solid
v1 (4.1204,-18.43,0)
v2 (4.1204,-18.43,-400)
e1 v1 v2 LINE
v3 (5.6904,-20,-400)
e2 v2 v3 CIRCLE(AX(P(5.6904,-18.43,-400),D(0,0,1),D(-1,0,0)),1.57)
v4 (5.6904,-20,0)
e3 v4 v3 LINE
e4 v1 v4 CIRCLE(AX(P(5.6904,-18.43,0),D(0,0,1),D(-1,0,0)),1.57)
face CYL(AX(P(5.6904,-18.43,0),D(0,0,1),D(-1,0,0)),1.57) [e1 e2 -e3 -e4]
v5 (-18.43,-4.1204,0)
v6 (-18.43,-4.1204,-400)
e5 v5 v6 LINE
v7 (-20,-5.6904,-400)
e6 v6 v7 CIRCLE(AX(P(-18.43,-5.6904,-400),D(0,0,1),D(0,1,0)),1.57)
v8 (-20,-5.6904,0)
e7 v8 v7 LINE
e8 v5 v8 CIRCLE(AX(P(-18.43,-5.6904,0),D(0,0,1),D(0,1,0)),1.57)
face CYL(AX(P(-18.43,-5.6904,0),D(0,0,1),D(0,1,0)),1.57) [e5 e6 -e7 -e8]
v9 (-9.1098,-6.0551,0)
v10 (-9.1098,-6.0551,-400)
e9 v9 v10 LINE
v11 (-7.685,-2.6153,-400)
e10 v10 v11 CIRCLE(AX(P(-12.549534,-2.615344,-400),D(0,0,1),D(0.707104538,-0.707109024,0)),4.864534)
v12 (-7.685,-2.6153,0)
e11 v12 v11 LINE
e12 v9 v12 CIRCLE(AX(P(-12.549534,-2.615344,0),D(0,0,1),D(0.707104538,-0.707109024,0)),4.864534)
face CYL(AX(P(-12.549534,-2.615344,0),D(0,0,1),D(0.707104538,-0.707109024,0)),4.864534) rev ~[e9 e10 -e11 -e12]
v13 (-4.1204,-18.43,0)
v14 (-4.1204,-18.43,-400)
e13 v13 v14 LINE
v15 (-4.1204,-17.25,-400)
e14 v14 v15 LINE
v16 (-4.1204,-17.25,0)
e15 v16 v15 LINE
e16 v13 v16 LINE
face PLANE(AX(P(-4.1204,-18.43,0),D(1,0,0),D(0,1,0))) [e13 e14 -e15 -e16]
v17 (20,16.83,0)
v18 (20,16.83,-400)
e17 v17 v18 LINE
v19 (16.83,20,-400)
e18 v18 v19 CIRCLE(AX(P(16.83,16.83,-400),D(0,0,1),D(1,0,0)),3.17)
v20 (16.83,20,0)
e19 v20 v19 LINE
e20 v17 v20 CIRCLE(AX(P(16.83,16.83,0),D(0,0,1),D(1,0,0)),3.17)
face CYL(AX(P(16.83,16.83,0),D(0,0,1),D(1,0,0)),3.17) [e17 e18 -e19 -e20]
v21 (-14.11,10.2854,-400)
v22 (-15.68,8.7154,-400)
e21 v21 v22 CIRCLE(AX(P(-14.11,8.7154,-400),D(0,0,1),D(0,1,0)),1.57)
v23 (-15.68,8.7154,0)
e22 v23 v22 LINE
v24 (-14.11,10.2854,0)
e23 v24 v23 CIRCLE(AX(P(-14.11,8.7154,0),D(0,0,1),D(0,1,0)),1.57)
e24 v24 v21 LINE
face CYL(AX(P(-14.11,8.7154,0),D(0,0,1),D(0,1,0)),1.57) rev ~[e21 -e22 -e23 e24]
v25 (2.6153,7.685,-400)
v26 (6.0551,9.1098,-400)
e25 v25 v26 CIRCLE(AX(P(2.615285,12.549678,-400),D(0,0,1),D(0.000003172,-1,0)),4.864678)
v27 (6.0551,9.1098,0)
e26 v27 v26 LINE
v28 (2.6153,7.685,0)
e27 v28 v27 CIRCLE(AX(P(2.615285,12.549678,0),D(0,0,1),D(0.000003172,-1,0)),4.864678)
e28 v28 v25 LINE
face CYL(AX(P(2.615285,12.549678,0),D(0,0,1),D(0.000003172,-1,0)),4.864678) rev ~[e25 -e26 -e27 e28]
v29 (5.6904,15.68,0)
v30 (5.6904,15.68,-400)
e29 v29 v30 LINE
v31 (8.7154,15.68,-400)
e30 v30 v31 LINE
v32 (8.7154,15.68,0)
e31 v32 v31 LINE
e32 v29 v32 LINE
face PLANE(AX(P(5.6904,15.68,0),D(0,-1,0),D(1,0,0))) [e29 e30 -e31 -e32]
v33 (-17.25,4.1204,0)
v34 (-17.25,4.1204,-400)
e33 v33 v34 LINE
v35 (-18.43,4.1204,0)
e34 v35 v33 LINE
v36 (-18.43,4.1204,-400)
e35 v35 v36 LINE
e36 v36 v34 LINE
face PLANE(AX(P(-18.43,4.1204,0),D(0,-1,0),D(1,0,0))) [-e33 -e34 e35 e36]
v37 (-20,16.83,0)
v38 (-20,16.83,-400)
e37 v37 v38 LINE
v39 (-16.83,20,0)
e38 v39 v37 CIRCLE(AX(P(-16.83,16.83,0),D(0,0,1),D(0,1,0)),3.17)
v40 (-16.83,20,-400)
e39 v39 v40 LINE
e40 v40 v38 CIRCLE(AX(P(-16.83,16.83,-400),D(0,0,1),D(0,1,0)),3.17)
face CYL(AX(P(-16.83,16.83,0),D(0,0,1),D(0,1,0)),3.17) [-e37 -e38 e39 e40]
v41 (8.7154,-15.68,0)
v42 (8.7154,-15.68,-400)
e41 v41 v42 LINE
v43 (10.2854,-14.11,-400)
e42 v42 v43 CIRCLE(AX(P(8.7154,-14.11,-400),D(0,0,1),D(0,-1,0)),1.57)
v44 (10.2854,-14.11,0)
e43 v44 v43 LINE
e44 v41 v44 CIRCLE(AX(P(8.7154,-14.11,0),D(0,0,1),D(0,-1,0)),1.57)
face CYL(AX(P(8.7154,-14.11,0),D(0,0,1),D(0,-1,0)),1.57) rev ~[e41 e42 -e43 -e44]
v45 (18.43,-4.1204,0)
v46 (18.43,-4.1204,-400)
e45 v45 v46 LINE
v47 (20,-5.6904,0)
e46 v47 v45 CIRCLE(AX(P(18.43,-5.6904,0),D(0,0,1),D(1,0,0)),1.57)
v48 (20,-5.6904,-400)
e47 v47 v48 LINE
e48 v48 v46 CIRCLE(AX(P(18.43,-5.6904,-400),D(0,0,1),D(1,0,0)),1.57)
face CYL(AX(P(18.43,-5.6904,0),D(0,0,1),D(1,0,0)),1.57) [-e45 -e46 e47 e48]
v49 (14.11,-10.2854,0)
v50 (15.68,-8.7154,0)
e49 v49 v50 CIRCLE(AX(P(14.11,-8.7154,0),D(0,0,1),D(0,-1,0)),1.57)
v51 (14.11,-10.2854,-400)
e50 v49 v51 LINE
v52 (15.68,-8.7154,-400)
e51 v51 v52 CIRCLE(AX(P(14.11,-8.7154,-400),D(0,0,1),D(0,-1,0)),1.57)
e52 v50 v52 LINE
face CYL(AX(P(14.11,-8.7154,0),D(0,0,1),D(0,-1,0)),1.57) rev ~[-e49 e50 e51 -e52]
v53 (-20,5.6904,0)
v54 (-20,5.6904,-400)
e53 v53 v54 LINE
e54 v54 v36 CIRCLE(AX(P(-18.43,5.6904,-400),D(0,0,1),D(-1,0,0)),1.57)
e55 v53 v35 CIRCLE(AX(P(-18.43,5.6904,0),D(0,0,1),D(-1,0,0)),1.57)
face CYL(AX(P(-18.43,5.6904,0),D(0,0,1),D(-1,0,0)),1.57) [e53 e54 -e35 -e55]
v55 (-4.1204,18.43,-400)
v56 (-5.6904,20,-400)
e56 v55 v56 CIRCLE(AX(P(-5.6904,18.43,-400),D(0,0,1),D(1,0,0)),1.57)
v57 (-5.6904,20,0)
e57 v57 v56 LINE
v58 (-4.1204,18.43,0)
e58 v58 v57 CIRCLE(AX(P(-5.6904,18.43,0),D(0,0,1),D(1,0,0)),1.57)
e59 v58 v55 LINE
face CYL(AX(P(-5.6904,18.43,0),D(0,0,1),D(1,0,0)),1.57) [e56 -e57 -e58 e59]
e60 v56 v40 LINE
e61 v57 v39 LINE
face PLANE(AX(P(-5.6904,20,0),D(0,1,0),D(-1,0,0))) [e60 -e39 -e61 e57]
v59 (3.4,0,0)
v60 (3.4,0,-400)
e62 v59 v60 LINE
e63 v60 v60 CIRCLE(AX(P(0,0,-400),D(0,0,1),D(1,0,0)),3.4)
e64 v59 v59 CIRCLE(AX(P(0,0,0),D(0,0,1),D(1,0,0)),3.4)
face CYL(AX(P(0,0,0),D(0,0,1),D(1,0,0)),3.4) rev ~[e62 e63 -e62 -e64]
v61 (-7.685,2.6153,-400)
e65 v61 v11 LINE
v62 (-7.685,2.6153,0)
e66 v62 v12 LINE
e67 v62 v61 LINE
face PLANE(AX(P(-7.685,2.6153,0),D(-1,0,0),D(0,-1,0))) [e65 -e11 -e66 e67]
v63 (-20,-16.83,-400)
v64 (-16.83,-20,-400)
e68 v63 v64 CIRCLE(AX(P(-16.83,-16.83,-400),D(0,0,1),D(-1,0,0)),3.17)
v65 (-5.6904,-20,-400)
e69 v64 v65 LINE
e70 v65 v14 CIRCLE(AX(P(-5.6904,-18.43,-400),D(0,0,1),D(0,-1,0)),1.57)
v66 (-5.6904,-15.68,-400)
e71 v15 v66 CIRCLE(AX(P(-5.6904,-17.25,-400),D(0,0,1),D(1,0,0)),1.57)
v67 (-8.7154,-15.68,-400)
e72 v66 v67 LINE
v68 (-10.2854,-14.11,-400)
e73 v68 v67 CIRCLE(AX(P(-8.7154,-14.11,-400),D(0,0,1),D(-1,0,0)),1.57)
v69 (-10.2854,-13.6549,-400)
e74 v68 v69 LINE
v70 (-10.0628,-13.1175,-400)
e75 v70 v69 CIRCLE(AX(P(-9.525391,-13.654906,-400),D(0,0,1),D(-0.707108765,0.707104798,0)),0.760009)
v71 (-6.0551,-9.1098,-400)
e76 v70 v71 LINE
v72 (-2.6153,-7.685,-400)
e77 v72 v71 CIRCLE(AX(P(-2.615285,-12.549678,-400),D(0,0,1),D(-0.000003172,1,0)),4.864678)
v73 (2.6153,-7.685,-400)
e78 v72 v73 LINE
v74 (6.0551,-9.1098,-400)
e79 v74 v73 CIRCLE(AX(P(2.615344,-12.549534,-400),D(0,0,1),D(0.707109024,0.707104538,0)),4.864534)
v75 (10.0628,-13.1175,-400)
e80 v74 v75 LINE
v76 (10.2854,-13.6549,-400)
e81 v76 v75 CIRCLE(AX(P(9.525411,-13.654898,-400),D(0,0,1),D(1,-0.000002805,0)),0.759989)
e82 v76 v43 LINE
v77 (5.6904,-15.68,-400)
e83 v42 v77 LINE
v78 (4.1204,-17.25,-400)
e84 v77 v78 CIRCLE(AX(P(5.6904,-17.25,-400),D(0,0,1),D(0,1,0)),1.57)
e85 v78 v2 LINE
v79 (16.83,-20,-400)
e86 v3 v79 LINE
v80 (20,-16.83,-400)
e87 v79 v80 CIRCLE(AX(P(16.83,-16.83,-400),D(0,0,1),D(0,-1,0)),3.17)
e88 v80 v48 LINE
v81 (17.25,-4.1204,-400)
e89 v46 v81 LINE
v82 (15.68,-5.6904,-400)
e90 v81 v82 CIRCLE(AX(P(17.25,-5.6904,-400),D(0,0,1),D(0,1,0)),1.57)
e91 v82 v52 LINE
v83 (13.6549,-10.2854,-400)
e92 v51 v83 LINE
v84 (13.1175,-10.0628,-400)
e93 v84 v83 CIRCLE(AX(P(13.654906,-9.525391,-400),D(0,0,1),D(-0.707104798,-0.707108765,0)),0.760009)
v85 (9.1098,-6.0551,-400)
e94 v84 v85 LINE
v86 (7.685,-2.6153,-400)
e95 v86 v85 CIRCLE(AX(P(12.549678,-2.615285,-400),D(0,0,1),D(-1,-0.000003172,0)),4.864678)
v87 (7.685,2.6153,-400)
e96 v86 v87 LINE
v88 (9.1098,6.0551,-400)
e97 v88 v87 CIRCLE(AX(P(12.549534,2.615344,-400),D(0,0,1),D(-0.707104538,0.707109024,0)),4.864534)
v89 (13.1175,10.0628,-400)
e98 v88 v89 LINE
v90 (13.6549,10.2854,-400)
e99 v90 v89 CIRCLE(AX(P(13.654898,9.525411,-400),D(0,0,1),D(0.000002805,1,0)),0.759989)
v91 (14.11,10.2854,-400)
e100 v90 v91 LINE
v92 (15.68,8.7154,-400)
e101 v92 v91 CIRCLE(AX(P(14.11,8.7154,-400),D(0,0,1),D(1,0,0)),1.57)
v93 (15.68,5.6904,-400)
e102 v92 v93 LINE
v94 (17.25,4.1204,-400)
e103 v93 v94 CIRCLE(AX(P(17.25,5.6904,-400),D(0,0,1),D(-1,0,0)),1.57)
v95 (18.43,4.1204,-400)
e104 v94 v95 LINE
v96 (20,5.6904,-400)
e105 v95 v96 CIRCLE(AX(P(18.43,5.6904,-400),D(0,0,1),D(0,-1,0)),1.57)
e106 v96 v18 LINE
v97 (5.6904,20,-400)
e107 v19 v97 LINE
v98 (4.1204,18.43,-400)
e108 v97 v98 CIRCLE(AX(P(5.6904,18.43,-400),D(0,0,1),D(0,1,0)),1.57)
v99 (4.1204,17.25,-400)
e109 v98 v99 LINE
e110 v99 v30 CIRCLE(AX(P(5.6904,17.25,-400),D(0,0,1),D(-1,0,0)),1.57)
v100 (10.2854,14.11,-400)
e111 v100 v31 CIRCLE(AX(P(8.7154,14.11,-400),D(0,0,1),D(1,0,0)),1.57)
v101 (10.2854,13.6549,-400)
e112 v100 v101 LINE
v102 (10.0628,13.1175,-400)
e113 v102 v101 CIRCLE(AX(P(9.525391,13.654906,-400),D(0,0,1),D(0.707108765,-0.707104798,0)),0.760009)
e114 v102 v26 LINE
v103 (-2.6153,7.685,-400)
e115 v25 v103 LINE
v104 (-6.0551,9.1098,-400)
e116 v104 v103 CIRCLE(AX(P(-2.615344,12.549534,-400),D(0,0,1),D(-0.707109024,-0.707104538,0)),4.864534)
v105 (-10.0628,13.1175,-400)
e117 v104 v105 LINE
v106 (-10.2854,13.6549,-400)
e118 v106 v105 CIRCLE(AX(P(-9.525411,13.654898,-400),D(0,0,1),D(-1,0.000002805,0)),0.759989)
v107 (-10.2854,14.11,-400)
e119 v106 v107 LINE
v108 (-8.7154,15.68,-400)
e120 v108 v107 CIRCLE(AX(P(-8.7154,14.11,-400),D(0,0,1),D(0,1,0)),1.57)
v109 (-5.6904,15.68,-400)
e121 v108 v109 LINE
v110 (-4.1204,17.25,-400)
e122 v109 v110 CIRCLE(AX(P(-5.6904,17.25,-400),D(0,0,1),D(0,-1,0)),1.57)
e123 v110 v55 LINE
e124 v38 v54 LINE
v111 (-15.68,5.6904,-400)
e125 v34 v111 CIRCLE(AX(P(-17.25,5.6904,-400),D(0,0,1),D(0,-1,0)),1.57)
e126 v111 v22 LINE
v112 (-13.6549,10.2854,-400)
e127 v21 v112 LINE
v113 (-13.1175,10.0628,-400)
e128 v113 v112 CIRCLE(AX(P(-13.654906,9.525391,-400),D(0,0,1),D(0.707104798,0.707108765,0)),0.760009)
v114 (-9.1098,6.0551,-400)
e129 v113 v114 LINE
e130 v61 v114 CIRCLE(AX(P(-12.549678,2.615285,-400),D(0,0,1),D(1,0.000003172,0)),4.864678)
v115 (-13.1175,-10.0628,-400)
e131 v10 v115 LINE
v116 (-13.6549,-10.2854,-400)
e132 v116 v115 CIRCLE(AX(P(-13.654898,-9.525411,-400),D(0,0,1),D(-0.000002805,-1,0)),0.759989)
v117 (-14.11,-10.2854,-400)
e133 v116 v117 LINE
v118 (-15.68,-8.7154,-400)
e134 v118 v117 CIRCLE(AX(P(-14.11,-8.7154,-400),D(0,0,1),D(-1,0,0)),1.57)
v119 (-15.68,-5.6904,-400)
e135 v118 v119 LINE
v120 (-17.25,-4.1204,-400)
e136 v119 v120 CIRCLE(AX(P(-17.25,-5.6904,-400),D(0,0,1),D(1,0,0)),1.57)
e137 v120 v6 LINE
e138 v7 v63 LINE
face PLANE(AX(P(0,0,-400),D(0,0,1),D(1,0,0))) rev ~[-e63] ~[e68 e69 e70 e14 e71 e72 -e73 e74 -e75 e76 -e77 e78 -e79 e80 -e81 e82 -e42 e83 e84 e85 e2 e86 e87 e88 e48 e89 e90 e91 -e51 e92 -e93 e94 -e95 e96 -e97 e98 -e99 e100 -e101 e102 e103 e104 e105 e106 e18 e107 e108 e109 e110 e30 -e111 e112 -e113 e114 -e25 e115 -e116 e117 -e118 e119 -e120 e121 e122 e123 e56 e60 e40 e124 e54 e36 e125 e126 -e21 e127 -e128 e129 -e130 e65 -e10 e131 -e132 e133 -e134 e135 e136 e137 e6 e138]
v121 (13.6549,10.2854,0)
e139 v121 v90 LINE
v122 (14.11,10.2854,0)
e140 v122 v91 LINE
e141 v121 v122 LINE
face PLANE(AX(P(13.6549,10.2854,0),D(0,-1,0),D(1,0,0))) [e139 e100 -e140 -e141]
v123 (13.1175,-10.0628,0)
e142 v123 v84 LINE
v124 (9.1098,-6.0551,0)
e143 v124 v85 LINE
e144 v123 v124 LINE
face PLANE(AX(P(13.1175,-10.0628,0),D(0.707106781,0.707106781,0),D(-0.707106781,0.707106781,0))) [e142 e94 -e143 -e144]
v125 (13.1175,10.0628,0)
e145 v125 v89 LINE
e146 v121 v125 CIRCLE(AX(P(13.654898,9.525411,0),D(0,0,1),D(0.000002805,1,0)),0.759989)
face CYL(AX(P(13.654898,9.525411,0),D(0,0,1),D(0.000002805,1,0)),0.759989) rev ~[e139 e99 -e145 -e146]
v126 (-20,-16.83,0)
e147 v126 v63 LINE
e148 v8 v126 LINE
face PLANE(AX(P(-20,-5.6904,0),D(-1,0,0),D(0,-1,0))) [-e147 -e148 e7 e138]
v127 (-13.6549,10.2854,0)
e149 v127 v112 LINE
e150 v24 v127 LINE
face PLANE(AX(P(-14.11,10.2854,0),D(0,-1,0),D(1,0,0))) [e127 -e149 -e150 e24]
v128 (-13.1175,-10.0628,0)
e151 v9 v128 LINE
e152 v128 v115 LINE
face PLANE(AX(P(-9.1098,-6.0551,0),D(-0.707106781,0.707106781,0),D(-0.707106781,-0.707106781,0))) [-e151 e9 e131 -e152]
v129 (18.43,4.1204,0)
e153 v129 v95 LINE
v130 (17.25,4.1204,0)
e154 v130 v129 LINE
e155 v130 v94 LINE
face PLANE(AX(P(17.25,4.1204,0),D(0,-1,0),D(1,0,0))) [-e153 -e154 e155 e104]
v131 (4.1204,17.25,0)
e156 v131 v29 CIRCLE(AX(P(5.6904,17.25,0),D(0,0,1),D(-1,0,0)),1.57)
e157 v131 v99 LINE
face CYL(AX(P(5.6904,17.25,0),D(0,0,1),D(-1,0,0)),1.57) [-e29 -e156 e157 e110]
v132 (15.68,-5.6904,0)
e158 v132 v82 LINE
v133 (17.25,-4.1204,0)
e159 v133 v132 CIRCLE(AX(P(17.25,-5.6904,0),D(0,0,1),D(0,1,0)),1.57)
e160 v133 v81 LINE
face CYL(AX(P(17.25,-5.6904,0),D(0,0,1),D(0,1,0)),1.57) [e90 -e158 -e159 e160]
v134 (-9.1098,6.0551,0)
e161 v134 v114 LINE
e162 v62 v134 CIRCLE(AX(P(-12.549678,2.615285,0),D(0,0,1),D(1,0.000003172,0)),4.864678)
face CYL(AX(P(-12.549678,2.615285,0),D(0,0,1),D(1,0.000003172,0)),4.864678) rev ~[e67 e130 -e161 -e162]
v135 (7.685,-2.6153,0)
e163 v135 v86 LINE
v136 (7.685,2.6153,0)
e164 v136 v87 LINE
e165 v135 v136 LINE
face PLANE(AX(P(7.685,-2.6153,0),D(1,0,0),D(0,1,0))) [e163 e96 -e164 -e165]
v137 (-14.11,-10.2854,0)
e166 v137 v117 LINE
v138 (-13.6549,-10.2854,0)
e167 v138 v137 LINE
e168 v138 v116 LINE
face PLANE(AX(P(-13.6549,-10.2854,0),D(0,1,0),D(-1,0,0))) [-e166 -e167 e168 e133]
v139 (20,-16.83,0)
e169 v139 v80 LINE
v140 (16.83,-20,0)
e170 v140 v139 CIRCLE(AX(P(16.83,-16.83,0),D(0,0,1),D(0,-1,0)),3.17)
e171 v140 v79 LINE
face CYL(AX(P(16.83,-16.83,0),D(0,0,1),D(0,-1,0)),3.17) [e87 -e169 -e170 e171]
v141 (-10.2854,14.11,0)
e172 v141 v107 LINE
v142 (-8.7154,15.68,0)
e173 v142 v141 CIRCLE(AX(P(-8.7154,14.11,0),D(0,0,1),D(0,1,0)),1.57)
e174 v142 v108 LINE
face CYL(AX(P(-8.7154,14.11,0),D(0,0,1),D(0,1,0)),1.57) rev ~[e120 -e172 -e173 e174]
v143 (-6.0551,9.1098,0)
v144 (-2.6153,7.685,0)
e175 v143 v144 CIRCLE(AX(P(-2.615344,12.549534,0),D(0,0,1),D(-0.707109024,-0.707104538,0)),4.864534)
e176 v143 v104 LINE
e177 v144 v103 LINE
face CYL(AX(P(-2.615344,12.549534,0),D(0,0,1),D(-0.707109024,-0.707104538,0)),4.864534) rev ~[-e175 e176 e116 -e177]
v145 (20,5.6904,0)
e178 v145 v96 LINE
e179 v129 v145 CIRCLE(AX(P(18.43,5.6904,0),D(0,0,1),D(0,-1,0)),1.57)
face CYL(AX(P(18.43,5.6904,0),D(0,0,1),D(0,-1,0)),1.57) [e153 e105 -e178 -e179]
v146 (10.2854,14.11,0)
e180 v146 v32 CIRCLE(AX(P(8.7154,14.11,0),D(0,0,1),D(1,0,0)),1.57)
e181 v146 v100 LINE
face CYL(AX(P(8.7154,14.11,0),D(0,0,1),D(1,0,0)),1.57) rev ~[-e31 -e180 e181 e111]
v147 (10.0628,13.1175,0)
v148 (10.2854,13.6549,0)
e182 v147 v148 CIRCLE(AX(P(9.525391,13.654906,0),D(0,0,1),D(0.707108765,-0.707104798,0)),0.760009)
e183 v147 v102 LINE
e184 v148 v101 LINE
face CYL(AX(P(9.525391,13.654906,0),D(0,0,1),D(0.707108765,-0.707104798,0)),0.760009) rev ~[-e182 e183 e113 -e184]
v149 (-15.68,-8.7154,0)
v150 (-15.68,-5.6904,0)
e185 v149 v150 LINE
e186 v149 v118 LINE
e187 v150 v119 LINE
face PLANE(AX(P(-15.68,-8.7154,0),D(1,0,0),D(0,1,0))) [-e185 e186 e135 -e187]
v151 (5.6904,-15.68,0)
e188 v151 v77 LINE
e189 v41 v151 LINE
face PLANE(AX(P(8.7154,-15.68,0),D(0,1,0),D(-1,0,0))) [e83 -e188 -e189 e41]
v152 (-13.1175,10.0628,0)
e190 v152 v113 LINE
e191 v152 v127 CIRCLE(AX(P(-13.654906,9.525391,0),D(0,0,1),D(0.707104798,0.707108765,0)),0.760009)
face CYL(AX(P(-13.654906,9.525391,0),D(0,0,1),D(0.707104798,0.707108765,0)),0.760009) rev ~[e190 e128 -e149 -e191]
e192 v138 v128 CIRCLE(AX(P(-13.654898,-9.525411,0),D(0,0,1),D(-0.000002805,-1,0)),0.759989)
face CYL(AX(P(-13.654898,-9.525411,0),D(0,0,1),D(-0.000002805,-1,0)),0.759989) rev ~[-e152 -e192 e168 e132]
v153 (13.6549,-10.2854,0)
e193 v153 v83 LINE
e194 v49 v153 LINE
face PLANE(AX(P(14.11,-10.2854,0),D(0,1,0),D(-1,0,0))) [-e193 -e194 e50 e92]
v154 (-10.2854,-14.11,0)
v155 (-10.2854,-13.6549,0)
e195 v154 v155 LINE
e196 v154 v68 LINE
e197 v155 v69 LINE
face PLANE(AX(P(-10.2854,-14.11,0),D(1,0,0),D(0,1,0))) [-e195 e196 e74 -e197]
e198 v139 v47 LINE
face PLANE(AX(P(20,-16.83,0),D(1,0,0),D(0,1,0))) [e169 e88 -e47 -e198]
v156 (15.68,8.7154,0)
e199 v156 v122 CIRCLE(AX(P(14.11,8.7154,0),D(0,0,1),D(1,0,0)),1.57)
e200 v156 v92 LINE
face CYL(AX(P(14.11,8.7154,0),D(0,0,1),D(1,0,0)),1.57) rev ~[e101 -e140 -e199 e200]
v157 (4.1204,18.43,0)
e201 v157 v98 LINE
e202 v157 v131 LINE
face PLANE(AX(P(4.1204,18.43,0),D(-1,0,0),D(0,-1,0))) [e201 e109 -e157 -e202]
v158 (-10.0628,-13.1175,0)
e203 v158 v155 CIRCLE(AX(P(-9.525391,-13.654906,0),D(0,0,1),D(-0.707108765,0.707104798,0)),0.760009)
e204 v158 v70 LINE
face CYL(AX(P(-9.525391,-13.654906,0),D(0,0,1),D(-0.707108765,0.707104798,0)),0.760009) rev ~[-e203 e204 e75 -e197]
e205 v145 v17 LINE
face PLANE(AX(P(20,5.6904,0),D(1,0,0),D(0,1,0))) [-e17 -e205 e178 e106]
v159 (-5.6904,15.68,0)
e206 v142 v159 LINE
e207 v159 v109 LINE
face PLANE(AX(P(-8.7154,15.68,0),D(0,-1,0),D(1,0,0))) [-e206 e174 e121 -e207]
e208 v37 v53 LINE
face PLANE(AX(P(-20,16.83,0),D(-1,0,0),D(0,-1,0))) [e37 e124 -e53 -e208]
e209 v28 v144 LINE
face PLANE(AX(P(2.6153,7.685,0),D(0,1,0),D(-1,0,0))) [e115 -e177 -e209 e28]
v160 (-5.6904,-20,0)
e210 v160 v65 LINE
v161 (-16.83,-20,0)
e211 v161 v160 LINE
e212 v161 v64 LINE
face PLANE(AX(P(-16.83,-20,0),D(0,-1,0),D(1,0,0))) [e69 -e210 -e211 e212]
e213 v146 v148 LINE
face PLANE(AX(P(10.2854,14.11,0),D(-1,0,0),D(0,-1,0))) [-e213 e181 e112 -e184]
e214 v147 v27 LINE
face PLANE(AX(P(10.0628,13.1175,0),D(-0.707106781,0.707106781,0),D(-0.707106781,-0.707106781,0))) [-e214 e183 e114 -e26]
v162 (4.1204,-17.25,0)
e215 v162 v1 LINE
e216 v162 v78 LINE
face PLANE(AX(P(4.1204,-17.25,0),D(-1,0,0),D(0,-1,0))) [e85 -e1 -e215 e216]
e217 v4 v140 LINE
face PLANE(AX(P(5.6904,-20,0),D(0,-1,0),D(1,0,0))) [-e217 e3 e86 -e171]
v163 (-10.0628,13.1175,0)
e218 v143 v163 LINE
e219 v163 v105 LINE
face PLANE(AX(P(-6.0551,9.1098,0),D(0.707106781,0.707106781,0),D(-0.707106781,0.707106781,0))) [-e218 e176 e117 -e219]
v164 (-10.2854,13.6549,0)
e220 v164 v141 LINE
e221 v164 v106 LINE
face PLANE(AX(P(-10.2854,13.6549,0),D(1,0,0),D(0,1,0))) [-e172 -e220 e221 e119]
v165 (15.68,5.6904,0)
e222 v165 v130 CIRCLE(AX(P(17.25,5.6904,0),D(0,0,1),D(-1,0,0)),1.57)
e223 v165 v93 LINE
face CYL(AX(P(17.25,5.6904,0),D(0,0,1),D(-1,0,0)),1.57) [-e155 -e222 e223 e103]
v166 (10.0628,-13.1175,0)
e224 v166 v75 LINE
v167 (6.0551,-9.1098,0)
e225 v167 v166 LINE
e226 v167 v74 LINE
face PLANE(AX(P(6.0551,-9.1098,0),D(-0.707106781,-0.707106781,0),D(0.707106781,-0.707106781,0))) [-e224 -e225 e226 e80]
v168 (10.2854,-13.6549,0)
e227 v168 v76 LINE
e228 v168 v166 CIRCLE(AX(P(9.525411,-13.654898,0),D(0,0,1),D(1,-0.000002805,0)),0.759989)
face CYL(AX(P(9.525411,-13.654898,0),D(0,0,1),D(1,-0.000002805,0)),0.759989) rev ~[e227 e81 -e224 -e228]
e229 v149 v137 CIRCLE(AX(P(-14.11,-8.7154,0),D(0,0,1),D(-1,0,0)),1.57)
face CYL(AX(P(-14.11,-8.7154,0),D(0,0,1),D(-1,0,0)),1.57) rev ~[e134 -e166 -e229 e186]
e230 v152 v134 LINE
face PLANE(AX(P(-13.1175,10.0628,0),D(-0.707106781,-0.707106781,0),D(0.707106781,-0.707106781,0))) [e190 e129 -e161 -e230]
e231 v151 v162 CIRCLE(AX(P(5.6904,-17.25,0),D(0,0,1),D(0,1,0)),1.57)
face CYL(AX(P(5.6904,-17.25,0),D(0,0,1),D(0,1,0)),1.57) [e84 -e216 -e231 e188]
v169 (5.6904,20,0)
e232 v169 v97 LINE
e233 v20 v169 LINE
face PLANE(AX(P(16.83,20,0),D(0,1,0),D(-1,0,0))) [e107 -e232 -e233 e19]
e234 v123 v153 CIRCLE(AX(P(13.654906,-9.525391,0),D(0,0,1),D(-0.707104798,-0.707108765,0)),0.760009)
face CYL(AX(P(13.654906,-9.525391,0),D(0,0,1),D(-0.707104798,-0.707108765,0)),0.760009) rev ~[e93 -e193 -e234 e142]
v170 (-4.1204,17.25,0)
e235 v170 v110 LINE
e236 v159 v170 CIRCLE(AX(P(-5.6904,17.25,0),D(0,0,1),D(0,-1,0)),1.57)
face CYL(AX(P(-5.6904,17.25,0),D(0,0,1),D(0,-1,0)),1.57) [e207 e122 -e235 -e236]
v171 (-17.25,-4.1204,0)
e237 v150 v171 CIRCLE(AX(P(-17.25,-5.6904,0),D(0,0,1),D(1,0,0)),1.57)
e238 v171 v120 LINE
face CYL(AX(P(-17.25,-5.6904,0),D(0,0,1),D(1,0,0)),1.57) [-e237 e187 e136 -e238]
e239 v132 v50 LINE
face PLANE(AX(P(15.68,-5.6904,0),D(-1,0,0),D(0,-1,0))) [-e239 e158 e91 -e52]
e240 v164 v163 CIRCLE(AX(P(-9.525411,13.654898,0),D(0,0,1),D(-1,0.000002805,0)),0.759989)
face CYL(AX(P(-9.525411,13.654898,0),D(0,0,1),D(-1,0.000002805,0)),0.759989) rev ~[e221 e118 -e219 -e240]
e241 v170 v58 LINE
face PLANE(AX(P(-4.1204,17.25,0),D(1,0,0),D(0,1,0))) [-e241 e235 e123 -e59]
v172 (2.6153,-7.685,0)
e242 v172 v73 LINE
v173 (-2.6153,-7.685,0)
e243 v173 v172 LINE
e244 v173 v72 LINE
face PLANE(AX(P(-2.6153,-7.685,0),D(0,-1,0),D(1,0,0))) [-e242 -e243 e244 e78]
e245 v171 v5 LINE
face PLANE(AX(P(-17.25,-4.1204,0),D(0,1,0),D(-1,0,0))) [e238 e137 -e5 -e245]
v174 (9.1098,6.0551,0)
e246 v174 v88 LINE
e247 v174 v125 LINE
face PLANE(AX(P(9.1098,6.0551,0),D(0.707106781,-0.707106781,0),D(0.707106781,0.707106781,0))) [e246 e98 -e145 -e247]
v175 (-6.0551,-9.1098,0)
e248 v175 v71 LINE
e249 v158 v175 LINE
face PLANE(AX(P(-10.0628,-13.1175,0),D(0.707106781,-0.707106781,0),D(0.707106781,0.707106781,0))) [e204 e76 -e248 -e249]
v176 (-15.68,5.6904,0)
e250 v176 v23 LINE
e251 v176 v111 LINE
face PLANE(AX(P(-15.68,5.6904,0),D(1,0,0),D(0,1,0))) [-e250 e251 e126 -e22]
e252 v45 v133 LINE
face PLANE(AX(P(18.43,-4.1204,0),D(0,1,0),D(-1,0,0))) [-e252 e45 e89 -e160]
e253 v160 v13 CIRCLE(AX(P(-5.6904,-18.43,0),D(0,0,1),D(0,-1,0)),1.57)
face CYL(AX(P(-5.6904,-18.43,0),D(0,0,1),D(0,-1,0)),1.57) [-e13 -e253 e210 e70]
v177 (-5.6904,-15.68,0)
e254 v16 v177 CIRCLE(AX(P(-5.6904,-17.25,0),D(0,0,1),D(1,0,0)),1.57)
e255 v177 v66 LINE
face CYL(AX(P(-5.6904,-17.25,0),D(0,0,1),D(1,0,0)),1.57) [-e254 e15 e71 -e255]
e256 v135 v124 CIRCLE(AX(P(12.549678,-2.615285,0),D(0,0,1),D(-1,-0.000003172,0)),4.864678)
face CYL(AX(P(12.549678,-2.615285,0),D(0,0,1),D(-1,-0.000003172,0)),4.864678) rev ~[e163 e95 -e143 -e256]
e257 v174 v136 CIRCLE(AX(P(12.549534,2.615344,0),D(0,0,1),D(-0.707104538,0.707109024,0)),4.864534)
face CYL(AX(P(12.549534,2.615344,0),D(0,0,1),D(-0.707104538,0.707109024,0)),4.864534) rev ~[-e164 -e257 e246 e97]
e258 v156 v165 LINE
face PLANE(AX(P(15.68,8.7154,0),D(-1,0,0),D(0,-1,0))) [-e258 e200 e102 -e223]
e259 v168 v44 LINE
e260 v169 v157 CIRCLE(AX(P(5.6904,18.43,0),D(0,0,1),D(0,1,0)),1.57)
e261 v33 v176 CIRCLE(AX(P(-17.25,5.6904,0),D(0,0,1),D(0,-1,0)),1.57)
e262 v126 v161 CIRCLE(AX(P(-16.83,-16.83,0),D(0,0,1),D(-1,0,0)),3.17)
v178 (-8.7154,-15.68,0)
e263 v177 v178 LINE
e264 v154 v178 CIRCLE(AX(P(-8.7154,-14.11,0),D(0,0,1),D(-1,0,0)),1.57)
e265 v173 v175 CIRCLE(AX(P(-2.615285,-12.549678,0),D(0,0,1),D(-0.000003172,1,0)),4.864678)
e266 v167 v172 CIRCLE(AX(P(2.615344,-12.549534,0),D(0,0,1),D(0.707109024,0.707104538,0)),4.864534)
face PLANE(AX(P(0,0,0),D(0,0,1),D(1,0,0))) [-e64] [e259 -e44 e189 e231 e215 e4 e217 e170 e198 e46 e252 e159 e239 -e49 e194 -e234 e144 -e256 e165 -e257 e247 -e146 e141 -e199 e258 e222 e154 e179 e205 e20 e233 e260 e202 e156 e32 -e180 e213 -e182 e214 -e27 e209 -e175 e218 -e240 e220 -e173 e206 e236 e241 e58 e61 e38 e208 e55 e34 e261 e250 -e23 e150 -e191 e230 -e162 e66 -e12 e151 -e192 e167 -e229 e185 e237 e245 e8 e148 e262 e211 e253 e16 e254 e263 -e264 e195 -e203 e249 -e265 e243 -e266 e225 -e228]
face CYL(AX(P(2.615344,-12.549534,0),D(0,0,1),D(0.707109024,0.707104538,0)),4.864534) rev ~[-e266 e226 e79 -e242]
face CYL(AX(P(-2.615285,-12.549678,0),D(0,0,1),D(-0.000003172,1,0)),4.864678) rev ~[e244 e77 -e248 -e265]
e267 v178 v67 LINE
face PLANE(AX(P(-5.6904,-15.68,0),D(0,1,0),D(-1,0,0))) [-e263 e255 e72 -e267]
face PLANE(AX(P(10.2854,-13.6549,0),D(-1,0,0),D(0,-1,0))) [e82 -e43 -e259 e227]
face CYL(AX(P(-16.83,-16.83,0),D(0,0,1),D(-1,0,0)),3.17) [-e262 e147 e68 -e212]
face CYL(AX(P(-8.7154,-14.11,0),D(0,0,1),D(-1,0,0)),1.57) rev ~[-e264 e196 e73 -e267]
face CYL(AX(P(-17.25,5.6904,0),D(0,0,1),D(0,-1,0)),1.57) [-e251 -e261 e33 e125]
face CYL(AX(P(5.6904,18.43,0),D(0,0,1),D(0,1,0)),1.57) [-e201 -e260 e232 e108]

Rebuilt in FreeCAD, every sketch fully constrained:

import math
import FreeCAD as App
import Part
import Sketcher
from FreeCAD import Vector
Q = App.Units.Quantity

doc = App.newDocument("Part")
body = doc.addObject("PartDesign::Body", "Body")

# Sketch on XY plane
sketch1 = body.newObject("Sketcher::SketchObject", "Sketch")
sketch1.AttachmentSupport = (doc.getObject("XY_Plane"), [""])
sketch1.MapMode = "FlatFace"
sketch1.addGeometry(Part.ArcOfCircle(Part.Circle(Vector(-16.83, 16.83, 0), Vector(0, 0, 1), 3.17), math.radians(90), math.radians(180)), False)
sketch1.addGeometry(Part.LineSegment(Vector(-20, 16.83, 0), Vector(-20, 5.69, 0)), False)
sketch1.addGeometry(Part.ArcOfCircle(Part.Circle(Vector(-18.43, 5.69, 0), Vector(0, 0, 1), 1.57), math.radians(180), math.radians(270)), False)
sketch1.addGeometry(Part.LineSegment(Vector(-18.43, 4.12, 0), Vector(-17.25, 4.12, 0)), False)
sketch1.addGeometry(Part.ArcOfCircle(Part.Circle(Vector(-17.25, 5.69, 0), Vector(0, 0, 1), 1.57), math.radians(-90), math.radians(0)), False)
sketch1.addGeometry(Part.LineSegment(Vector(-15.68, 5.69, 0), Vector(-15.68, 8.72, 0)), False)
sketch1.addGeometry(Part.ArcOfCircle(Part.Circle(Vector(-14.11, 8.72, 0), Vector(0, 0, 1), 1.57), math.radians(90), math.radians(180)), False)
sketch1.addGeometry(Part.LineSegment(Vector(-14.11, 10.29, 0), Vector(-13.65, 10.29, 0)), False)
sketch1.addGeometry(Part.ArcOfCircle(Part.Circle(Vector(-13.65, 9.53, 0), Vector(0, 0, 1), 0.76), math.radians(45), math.radians(90)), False)
sketch1.addGeometry(Part.LineSegment(Vector(-13.12, 10.06, 0), Vector(-9.11, 6.06, 0)), False)
sketch1.addGeometry(Part.ArcOfCircle(Part.Circle(Vector(-12.55, 2.62, 0), Vector(0, 0, 1), 4.86), math.radians(0), math.radians(45)), False)
sketch1.addGeometry(Part.LineSegment(Vector(-7.68, 2.62, 0), Vector(-7.68, -2.62, 0)), False)
sketch1.addGeometry(Part.ArcOfCircle(Part.Circle(Vector(-12.55, -2.62, 0), Vector(0, 0, 1), 4.86), math.radians(-45), math.radians(0)), False)
sketch1.addGeometry(Part.LineSegment(Vector(-9.11, -6.06, 0), Vector(-13.12, -10.06, 0)), False)
sketch1.addGeometry(Part.ArcOfCircle(Part.Circle(Vector(-13.65, -9.53, 0), Vector(0, 0, 1), 0.76), math.radians(-90), math.radians(-45)), False)
sketch1.addGeometry(Part.LineSegment(Vector(-13.65, -10.29, 0), Vector(-14.11, -10.29, 0)), False)
sketch1.addGeometry(Part.ArcOfCircle(Part.Circle(Vector(-14.11, -8.72, 0), Vector(0, 0, 1), 1.57), math.radians(180), math.radians(270)), False)
sketch1.addGeometry(Part.LineSegment(Vector(-15.68, -8.72, 0), Vector(-15.68, -5.69, 0)), False)
sketch1.addGeometry(Part.ArcOfCircle(Part.Circle(Vector(-17.25, -5.69, 0), Vector(0, 0, 1), 1.57), math.radians(0), math.radians(90)), False)
sketch1.addGeometry(Part.LineSegment(Vector(-17.25, -4.12, 0), Vector(-18.43, -4.12, 0)), False)
sketch1.addGeometry(Part.ArcOfCircle(Part.Circle(Vector(-18.43, -5.69, 0), Vector(0, 0, 1), 1.57), math.radians(90), math.radians(180)), False)
sketch1.addGeometry(Part.LineSegment(Vector(-20, -5.69, 0), Vector(-20, -16.83, 0)), False)
sketch1.addGeometry(Part.ArcOfCircle(Part.Circle(Vector(-16.83, -16.83, 0), Vector(0, 0, 1), 3.17), math.radians(180), math.radians(270)), False)
sketch1.addGeometry(Part.LineSegment(Vector(-16.83, -20, 0), Vector(-5.69, -20, 0)), False)
sketch1.addGeometry(Part.ArcOfCircle(Part.Circle(Vector(-5.69, -18.43, 0), Vector(0, 0, 1), 1.57), math.radians(-90), math.radians(0)), False)
sketch1.addGeometry(Part.LineSegment(Vector(-4.12, -18.43, 0), Vector(-4.12, -17.25, 0)), False)
sketch1.addGeometry(Part.ArcOfCircle(Part.Circle(Vector(-5.69, -17.25, 0), Vector(0, 0, 1), 1.57), math.radians(0), math.radians(90)), False)
sketch1.addGeometry(Part.LineSegment(Vector(-5.69, -15.68, 0), Vector(-8.72, -15.68, 0)), False)
sketch1.addGeometry(Part.ArcOfCircle(Part.Circle(Vector(-8.72, -14.11, 0), Vector(0, 0, 1), 1.57), math.radians(180), math.radians(270)), False)
sketch1.addGeometry(Part.LineSegment(Vector(-10.29, -14.11, 0), Vector(-10.29, -13.65, 0)), False)
sketch1.addGeometry(Part.ArcOfCircle(Part.Circle(Vector(-9.53, -13.65, 0), Vector(0, 0, 1), 0.76), math.radians(135), math.radians(180)), False)
sketch1.addGeometry(Part.LineSegment(Vector(-10.06, -13.12, 0), Vector(-6.06, -9.11, 0)), False)
sketch1.addGeometry(Part.ArcOfCircle(Part.Circle(Vector(-2.62, -12.55, 0), Vector(0, 0, 1), 4.86), math.radians(90), math.radians(135)), False)
sketch1.addGeometry(Part.LineSegment(Vector(-2.62, -7.68, 0), Vector(2.62, -7.68, 0)), False)
sketch1.addGeometry(Part.ArcOfCircle(Part.Circle(Vector(2.62, -12.55, 0), Vector(0, 0, 1), 4.86), math.radians(45), math.radians(90)), False)
sketch1.addGeometry(Part.LineSegment(Vector(6.06, -9.11, 0), Vector(10.06, -13.12, 0)), False)
sketch1.addGeometry(Part.ArcOfCircle(Part.Circle(Vector(9.53, -13.65, 0), Vector(0, 0, 1), 0.76), math.radians(0), math.radians(45)), False)
sketch1.addGeometry(Part.LineSegment(Vector(10.29, -13.65, 0), Vector(10.29, -14.11, 0)), False)
sketch1.addGeometry(Part.ArcOfCircle(Part.Circle(Vector(8.72, -14.11, 0), Vector(0, 0, 1), 1.57), math.radians(-90), math.radians(0)), False)
sketch1.addGeometry(Part.LineSegment(Vector(8.72, -15.68, 0), Vector(5.69, -15.68, 0)), False)
sketch1.addGeometry(Part.ArcOfCircle(Part.Circle(Vector(5.69, -17.25, 0), Vector(0, 0, 1), 1.57), math.radians(90), math.radians(180)), False)
sketch1.addGeometry(Part.LineSegment(Vector(4.12, -17.25, 0), Vector(4.12, -18.43, 0)), False)
sketch1.addGeometry(Part.ArcOfCircle(Part.Circle(Vector(5.69, -18.43, 0), Vector(0, 0, 1), 1.57), math.radians(180), math.radians(270)), False)
sketch1.addGeometry(Part.LineSegment(Vector(5.69, -20, 0), Vector(16.83, -20, 0)), False)
sketch1.addGeometry(Part.ArcOfCircle(Part.Circle(Vector(16.83, -16.83, 0), Vector(0, 0, 1), 3.17), math.radians(-90), math.radians(0)), False)
sketch1.addGeometry(Part.LineSegment(Vector(20, -16.83, 0), Vector(20, -5.69, 0)), False)
sketch1.addGeometry(Part.ArcOfCircle(Part.Circle(Vector(18.43, -5.69, 0), Vector(0, 0, 1), 1.57), math.radians(0), math.radians(90)), False)
sketch1.addGeometry(Part.LineSegment(Vector(18.43, -4.12, 0), Vector(17.25, -4.12, 0)), False)
sketch1.addGeometry(Part.ArcOfCircle(Part.Circle(Vector(17.25, -5.69, 0), Vector(0, 0, 1), 1.57), math.radians(90), math.radians(180)), False)
sketch1.addGeometry(Part.LineSegment(Vector(15.68, -5.69, 0), Vector(15.68, -8.72, 0)), False)
sketch1.addGeometry(Part.ArcOfCircle(Part.Circle(Vector(14.11, -8.72, 0), Vector(0, 0, 1), 1.57), math.radians(-90), math.radians(0)), False)
sketch1.addGeometry(Part.LineSegment(Vector(14.11, -10.29, 0), Vector(13.65, -10.29, 0)), False)
sketch1.addGeometry(Part.ArcOfCircle(Part.Circle(Vector(13.65, -9.53, 0), Vector(0, 0, 1), 0.76), math.radians(-135), math.radians(-90)), False)
sketch1.addGeometry(Part.LineSegment(Vector(13.12, -10.06, 0), Vector(9.11, -6.06, 0)), False)
sketch1.addGeometry(Part.ArcOfCircle(Part.Circle(Vector(12.55, -2.62, 0), Vector(0, 0, 1), 4.86), math.radians(180), math.radians(225)), False)
sketch1.addGeometry(Part.LineSegment(Vector(7.68, -2.62, 0), Vector(7.68, 2.62, 0)), False)
sketch1.addGeometry(Part.ArcOfCircle(Part.Circle(Vector(12.55, 2.62, 0), Vector(0, 0, 1), 4.86), math.radians(135), math.radians(180)), False)
sketch1.addGeometry(Part.LineSegment(Vector(9.11, 6.06, 0), Vector(13.12, 10.06, 0)), False)
sketch1.addGeometry(Part.ArcOfCircle(Part.Circle(Vector(13.65, 9.53, 0), Vector(0, 0, 1), 0.76), math.radians(90), math.radians(135)), False)
sketch1.addGeometry(Part.LineSegment(Vector(13.65, 10.29, 0), Vector(14.11, 10.29, 0)), False)
sketch1.addGeometry(Part.ArcOfCircle(Part.Circle(Vector(14.11, 8.72, 0), Vector(0, 0, 1), 1.57), math.radians(0), math.radians(90)), False)
sketch1.addGeometry(Part.LineSegment(Vector(15.68, 8.72, 0), Vector(15.68, 5.69, 0)), False)
sketch1.addGeometry(Part.ArcOfCircle(Part.Circle(Vector(17.25, 5.69, 0), Vector(0, 0, 1), 1.57), math.radians(180), math.radians(270)), False)
sketch1.addGeometry(Part.LineSegment(Vector(17.25, 4.12, 0), Vector(18.43, 4.12, 0)), False)
sketch1.addGeometry(Part.ArcOfCircle(Part.Circle(Vector(18.43, 5.69, 0), Vector(0, 0, 1), 1.57), math.radians(-90), math.radians(0)), False)
sketch1.addGeometry(Part.LineSegment(Vector(20, 5.69, 0), Vector(20, 16.83, 0)), False)
sketch1.addGeometry(Part.ArcOfCircle(Part.Circle(Vector(16.83, 16.83, 0), Vector(0, 0, 1), 3.17), math.radians(0), math.radians(90)), False)
sketch1.addGeometry(Part.LineSegment(Vector(16.83, 20, 0), Vector(5.69, 20, 0)), False)
sketch1.addGeometry(Part.ArcOfCircle(Part.Circle(Vector(5.69, 18.43, 0), Vector(0, 0, 1), 1.57), math.radians(90), math.radians(180)), False)
sketch1.addGeometry(Part.LineSegment(Vector(4.12, 18.43, 0), Vector(4.12, 17.25, 0)), False)
sketch1.addGeometry(Part.ArcOfCircle(Part.Circle(Vector(5.69, 17.25, 0), Vector(0, 0, 1), 1.57), math.radians(180), math.radians(270)), False)
sketch1.addGeometry(Part.LineSegment(Vector(5.69, 15.68, 0), Vector(8.72, 15.68, 0)), False)
sketch1.addGeometry(Part.ArcOfCircle(Part.Circle(Vector(8.72, 14.11, 0), Vector(0, 0, 1), 1.57), math.radians(0), math.radians(90)), False)
sketch1.addGeometry(Part.LineSegment(Vector(10.29, 14.11, 0), Vector(10.29, 13.65, 0)), False)
sketch1.addGeometry(Part.ArcOfCircle(Part.Circle(Vector(9.53, 13.65, 0), Vector(0, 0, 1), 0.76), math.radians(-45), math.radians(0)), False)
sketch1.addGeometry(Part.LineSegment(Vector(10.06, 13.12, 0), Vector(6.06, 9.11, 0)), False)
sketch1.addGeometry(Part.ArcOfCircle(Part.Circle(Vector(2.62, 12.55, 0), Vector(0, 0, 1), 4.86), math.radians(-90), math.radians(-45)), False)
sketch1.addGeometry(Part.LineSegment(Vector(2.62, 7.68, 0), Vector(-2.62, 7.68, 0)), False)
sketch1.addGeometry(Part.ArcOfCircle(Part.Circle(Vector(-2.62, 12.55, 0), Vector(0, 0, 1), 4.86), math.radians(-135), math.radians(-90)), False)
sketch1.addGeometry(Part.LineSegment(Vector(-6.06, 9.11, 0), Vector(-10.06, 13.12, 0)), False)
sketch1.addGeometry(Part.ArcOfCircle(Part.Circle(Vector(-9.53, 13.65, 0), Vector(0, 0, 1), 0.76), math.radians(180), math.radians(225)), False)
sketch1.addGeometry(Part.LineSegment(Vector(-10.29, 13.65, 0), Vector(-10.29, 14.11, 0)), False)
sketch1.addGeometry(Part.ArcOfCircle(Part.Circle(Vector(-8.72, 14.11, 0), Vector(0, 0, 1), 1.57), math.radians(90), math.radians(180)), False)
sketch1.addGeometry(Part.LineSegment(Vector(-8.72, 15.68, 0), Vector(-5.69, 15.68, 0)), False)
sketch1.addGeometry(Part.ArcOfCircle(Part.Circle(Vector(-5.69, 17.25, 0), Vector(0, 0, 1), 1.57), math.radians(-90), math.radians(0)), False)
sketch1.addGeometry(Part.LineSegment(Vector(-4.12, 17.25, 0), Vector(-4.12, 18.43, 0)), False)
sketch1.addGeometry(Part.ArcOfCircle(Part.Circle(Vector(-5.69, 18.43, 0), Vector(0, 0, 1), 1.57), math.radians(0), math.radians(90)), False)
sketch1.addGeometry(Part.LineSegment(Vector(-5.69, 20, 0), Vector(-16.83, 20, 0)), False)
sketch1.addGeometry(Part.Circle(Vector(0, 0, 0), Vector(0, 0, 1), 3.4), False)
sketch1.addConstraint(Sketcher.Constraint("Tangent", 0, 2, 1, 1))
sketch1.addConstraint(Sketcher.Constraint("Tangent", 1, 2, 2, 1))
sketch1.addConstraint(Sketcher.Constraint("Tangent", 2, 2, 3, 1))
sketch1.addConstraint(Sketcher.Constraint("Tangent", 3, 2, 4, 1))
sketch1.addConstraint(Sketcher.Constraint("Tangent", 4, 2, 5, 1))
sketch1.addConstraint(Sketcher.Constraint("Tangent", 5, 2, 6, 2))
sketch1.addConstraint(Sketcher.Constraint("Tangent", 6, 1, 7, 1))
sketch1.addConstraint(Sketcher.Constraint("Tangent", 7, 2, 8, 2))
sketch1.addConstraint(Sketcher.Constraint("Tangent", 8, 1, 9, 1))
sketch1.addConstraint(Sketcher.Constraint("Tangent", 9, 2, 10, 2))
sketch1.addConstraint(Sketcher.Constraint("Tangent", 10, 1, 11, 1))
sketch1.addConstraint(Sketcher.Constraint("Tangent", 11, 2, 12, 2))
sketch1.addConstraint(Sketcher.Constraint("Tangent", 12, 1, 13, 1))
sketch1.addConstraint(Sketcher.Constraint("Tangent", 13, 2, 14, 2))
sketch1.addConstraint(Sketcher.Constraint("Tangent", 14, 1, 15, 1))
sketch1.addConstraint(Sketcher.Constraint("Tangent", 15, 2, 16, 2))
sketch1.addConstraint(Sketcher.Constraint("Tangent", 16, 1, 17, 1))
sketch1.addConstraint(Sketcher.Constraint("Tangent", 17, 2, 18, 1))
sketch1.addConstraint(Sketcher.Constraint("Tangent", 18, 2, 19, 1))
sketch1.addConstraint(Sketcher.Constraint("Tangent", 19, 2, 20, 1))
sketch1.addConstraint(Sketcher.Constraint("Tangent", 20, 2, 21, 1))
sketch1.addConstraint(Sketcher.Constraint("Tangent", 21, 2, 22, 1))
sketch1.addConstraint(Sketcher.Constraint("Tangent", 22, 2, 23, 1))
sketch1.addConstraint(Sketcher.Constraint("Tangent", 23, 2, 24, 1))
sketch1.addConstraint(Sketcher.Constraint("Tangent", 24, 2, 25, 1))
sketch1.addConstraint(Sketcher.Constraint("Tangent", 25, 2, 26, 1))
sketch1.addConstraint(Sketcher.Constraint("Tangent", 26, 2, 27, 1))
sketch1.addConstraint(Sketcher.Constraint("Tangent", 27, 2, 28, 2))
sketch1.addConstraint(Sketcher.Constraint("Tangent", 28, 1, 29, 1))
sketch1.addConstraint(Sketcher.Constraint("Tangent", 29, 2, 30, 2))
sketch1.addConstraint(Sketcher.Constraint("Tangent", 30, 1, 31, 1))
sketch1.addConstraint(Sketcher.Constraint("Tangent", 31, 2, 32, 2))
sketch1.addConstraint(Sketcher.Constraint("Tangent", 32, 1, 33, 1))
sketch1.addConstraint(Sketcher.Constraint("Tangent", 33, 2, 34, 2))
sketch1.addConstraint(Sketcher.Constraint("Tangent", 34, 1, 35, 1))
sketch1.addConstraint(Sketcher.Constraint("Tangent", 35, 2, 36, 2))
sketch1.addConstraint(Sketcher.Constraint("Tangent", 36, 1, 37, 1))
sketch1.addConstraint(Sketcher.Constraint("Tangent", 37, 2, 38, 2))
sketch1.addConstraint(Sketcher.Constraint("Tangent", 38, 1, 39, 1))
sketch1.addConstraint(Sketcher.Constraint("Tangent", 39, 2, 40, 1))
sketch1.addConstraint(Sketcher.Constraint("Tangent", 40, 2, 41, 1))
sketch1.addConstraint(Sketcher.Constraint("Tangent", 41, 2, 42, 1))
sketch1.addConstraint(Sketcher.Constraint("Tangent", 42, 2, 43, 1))
sketch1.addConstraint(Sketcher.Constraint("Tangent", 43, 2, 44, 1))
sketch1.addConstraint(Sketcher.Constraint("Tangent", 44, 2, 45, 1))
sketch1.addConstraint(Sketcher.Constraint("Tangent", 45, 2, 46, 1))
sketch1.addConstraint(Sketcher.Constraint("Tangent", 46, 2, 47, 1))
sketch1.addConstraint(Sketcher.Constraint("Tangent", 47, 2, 48, 1))
sketch1.addConstraint(Sketcher.Constraint("Tangent", 48, 2, 49, 1))
sketch1.addConstraint(Sketcher.Constraint("Tangent", 49, 2, 50, 2))
sketch1.addConstraint(Sketcher.Constraint("Tangent", 50, 1, 51, 1))
sketch1.addConstraint(Sketcher.Constraint("Tangent", 51, 2, 52, 2))
sketch1.addConstraint(Sketcher.Constraint("Tangent", 52, 1, 53, 1))
sketch1.addConstraint(Sketcher.Constraint("Tangent", 53, 2, 54, 2))
sketch1.addConstraint(Sketcher.Constraint("Tangent", 54, 1, 55, 1))
sketch1.addConstraint(Sketcher.Constraint("Tangent", 55, 2, 56, 2))
sketch1.addConstraint(Sketcher.Constraint("Tangent", 56, 1, 57, 1))
sketch1.addConstraint(Sketcher.Constraint("Tangent", 57, 2, 58, 2))
sketch1.addConstraint(Sketcher.Constraint("Tangent", 58, 1, 59, 1))
sketch1.addConstraint(Sketcher.Constraint("Tangent", 59, 2, 60, 2))
sketch1.addConstraint(Sketcher.Constraint("Tangent", 60, 1, 61, 1))
sketch1.addConstraint(Sketcher.Constraint("Tangent", 61, 2, 62, 1))
sketch1.addConstraint(Sketcher.Constraint("Tangent", 62, 2, 63, 1))
sketch1.addConstraint(Sketcher.Constraint("Tangent", 63, 2, 64, 1))
sketch1.addConstraint(Sketcher.Constraint("Tangent", 64, 2, 65, 1))
sketch1.addConstraint(Sketcher.Constraint("Tangent", 65, 2, 66, 1))
sketch1.addConstraint(Sketcher.Constraint("Tangent", 66, 2, 67, 1))
sketch1.addConstraint(Sketcher.Constraint("Tangent", 67, 2, 68, 1))
sketch1.addConstraint(Sketcher.Constraint("Tangent", 68, 2, 69, 1))
sketch1.addConstraint(Sketcher.Constraint("Tangent", 69, 2, 70, 1))
sketch1.addConstraint(Sketcher.Constraint("Tangent", 70, 2, 71, 1))
sketch1.addConstraint(Sketcher.Constraint("Tangent", 71, 2, 72, 2))
sketch1.addConstraint(Sketcher.Constraint("Tangent", 72, 1, 73, 1))
sketch1.addConstraint(Sketcher.Constraint("Tangent", 73, 2, 74, 2))
sketch1.addConstraint(Sketcher.Constraint("Tangent", 74, 1, 75, 1))
sketch1.addConstraint(Sketcher.Constraint("Tangent", 75, 2, 76, 2))
sketch1.addConstraint(Sketcher.Constraint("Tangent", 76, 1, 77, 1))
sketch1.addConstraint(Sketcher.Constraint("Tangent", 77, 2, 78, 2))
sketch1.addConstraint(Sketcher.Constraint("Tangent", 78, 1, 79, 1))
sketch1.addConstraint(Sketcher.Constraint("Tangent", 79, 2, 80, 2))
sketch1.addConstraint(Sketcher.Constraint("Tangent", 80, 1, 81, 1))
sketch1.addConstraint(Sketcher.Constraint("Tangent", 81, 2, 82, 2))
sketch1.addConstraint(Sketcher.Constraint("Tangent", 82, 1, 83, 1))
sketch1.addConstraint(Sketcher.Constraint("Tangent", 83, 2, 84, 1))
sketch1.addConstraint(Sketcher.Constraint("Tangent", 84, 2, 85, 1))
sketch1.addConstraint(Sketcher.Constraint("Tangent", 85, 2, 86, 1))
sketch1.addConstraint(Sketcher.Constraint("Tangent", 86, 2, 87, 1))
sketch1.addConstraint(Sketcher.Constraint("Tangent", 87, 2, 0, 1))
sketch1.addConstraint(Sketcher.Constraint("Vertical", 1))
sketch1.addConstraint(Sketcher.Constraint("Horizontal", 3))
sketch1.addConstraint(Sketcher.Constraint("Vertical", 5))
sketch1.addConstraint(Sketcher.Constraint("Horizontal", 7))
sketch1.addConstraint(Sketcher.Constraint("Vertical", 11))
sketch1.addConstraint(Sketcher.Constraint("Horizontal", 15))
sketch1.addConstraint(Sketcher.Constraint("Vertical", 17))
sketch1.addConstraint(Sketcher.Constraint("Horizontal", 19))
sketch1.addConstraint(Sketcher.Constraint("Vertical", 21))
sketch1.addConstraint(Sketcher.Constraint("Horizontal", 23))
sketch1.addConstraint(Sketcher.Constraint("Vertical", 25))
sketch1.addConstraint(Sketcher.Constraint("Horizontal", 27))
sketch1.addConstraint(Sketcher.Constraint("Vertical", 29))
sketch1.addConstraint(Sketcher.Constraint("Horizontal", 33))
sketch1.addConstraint(Sketcher.Constraint("Vertical", 37))
sketch1.addConstraint(Sketcher.Constraint("Horizontal", 39))
sketch1.addConstraint(Sketcher.Constraint("Vertical", 41))
sketch1.addConstraint(Sketcher.Constraint("Horizontal", 43))
sketch1.addConstraint(Sketcher.Constraint("Vertical", 45))
sketch1.addConstraint(Sketcher.Constraint("Horizontal", 47))
sketch1.addConstraint(Sketcher.Constraint("Vertical", 49))
sketch1.addConstraint(Sketcher.Constraint("Horizontal", 51))
sketch1.addConstraint(Sketcher.Constraint("Vertical", 55))
sketch1.addConstraint(Sketcher.Constraint("Horizontal", 59))
sketch1.addConstraint(Sketcher.Constraint("Vertical", 61))
sketch1.addConstraint(Sketcher.Constraint("Horizontal", 63))
sketch1.addConstraint(Sketcher.Constraint("Vertical", 65))
sketch1.addConstraint(Sketcher.Constraint("Horizontal", 67))
sketch1.addConstraint(Sketcher.Constraint("Vertical", 69))
sketch1.addConstraint(Sketcher.Constraint("Horizontal", 71))
sketch1.addConstraint(Sketcher.Constraint("Vertical", 73))
sketch1.addConstraint(Sketcher.Constraint("Horizontal", 77))
sketch1.addConstraint(Sketcher.Constraint("Vertical", 81))
sketch1.addConstraint(Sketcher.Constraint("Horizontal", 83))
sketch1.addConstraint(Sketcher.Constraint("Vertical", 85))
sketch1.addConstraint(Sketcher.Constraint("Horizontal", 87))
sketch1.addConstraint(Sketcher.Constraint("Coincident", 88, 3, -1, 1))
sketch1.addConstraint(Sketcher.Constraint("Equal", 2, 4))
sketch1.addConstraint(Sketcher.Constraint("Equal", 4, 6))
sketch1.addConstraint(Sketcher.Constraint("Equal", 10, 12))
sketch1.addConstraint(Sketcher.Constraint("Equal", 8, 14))
sketch1.addConstraint(Sketcher.Constraint("Equal", 6, 16))
sketch1.addConstraint(Sketcher.Constraint("Equal", 16, 18))
sketch1.addConstraint(Sketcher.Constraint("Equal", 18, 20))
sketch1.addConstraint(Sketcher.Constraint("Equal", 0, 22))
sketch1.addConstraint(Sketcher.Constraint("Equal", 20, 24))
sketch1.addConstraint(Sketcher.Constraint("Equal", 24, 26))
sketch1.addConstraint(Sketcher.Constraint("Equal", 26, 28))
sketch1.addConstraint(Sketcher.Constraint("Equal", 14, 30))
sketch1.addConstraint(Sketcher.Constraint("Equal", 12, 32))
sketch1.addConstraint(Sketcher.Constraint("Equal", 32, 34))
sketch1.addConstraint(Sketcher.Constraint("Equal", 30, 36))
sketch1.addConstraint(Sketcher.Constraint("Equal", 28, 38))
sketch1.addConstraint(Sketcher.Constraint("Equal", 38, 40))
sketch1.addConstraint(Sketcher.Constraint("Equal", 40, 42))
sketch1.addConstraint(Sketcher.Constraint("Equal", 22, 44))
sketch1.addConstraint(Sketcher.Constraint("Equal", 42, 46))
sketch1.addConstraint(Sketcher.Constraint("Equal", 46, 48))
sketch1.addConstraint(Sketcher.Constraint("Equal", 48, 50))
sketch1.addConstraint(Sketcher.Constraint("Equal", 36, 52))
sketch1.addConstraint(Sketcher.Constraint("Equal", 34, 54))
sketch1.addConstraint(Sketcher.Constraint("Equal", 54, 56))
sketch1.addConstraint(Sketcher.Constraint("Equal", 52, 58))
sketch1.addConstraint(Sketcher.Constraint("Equal", 50, 60))
sketch1.addConstraint(Sketcher.Constraint("Equal", 60, 62))
sketch1.addConstraint(Sketcher.Constraint("Equal", 62, 64))
sketch1.addConstraint(Sketcher.Constraint("Equal", 44, 66))
sketch1.addConstraint(Sketcher.Constraint("Equal", 64, 68))
sketch1.addConstraint(Sketcher.Constraint("Equal", 68, 70))
sketch1.addConstraint(Sketcher.Constraint("Equal", 70, 72))
sketch1.addConstraint(Sketcher.Constraint("Equal", 58, 74))
sketch1.addConstraint(Sketcher.Constraint("Equal", 56, 76))
sketch1.addConstraint(Sketcher.Constraint("Equal", 76, 78))
sketch1.addConstraint(Sketcher.Constraint("Equal", 74, 80))
sketch1.addConstraint(Sketcher.Constraint("Equal", 72, 82))
sketch1.addConstraint(Sketcher.Constraint("Equal", 82, 84))
sketch1.addConstraint(Sketcher.Constraint("Equal", 84, 86))
sketch1.addConstraint(Sketcher.Constraint("Symmetric", 0, 3, 44, 3, -1, 1))
sketch1.addConstraint(Sketcher.Constraint("Symmetric", 4, 3, 48, 3, -1, 1))
sketch1.addConstraint(Sketcher.Constraint("Symmetric", 8, 3, 52, 3, -1, 1))
sketch1.addConstraint(Sketcher.Constraint("Symmetric", 10, 3, 54, 3, -1, 1))
sketch1.addConstraint(Sketcher.Constraint("Symmetric", 14, 3, 58, 3, -1, 1))
sketch1.addConstraint(Sketcher.Constraint("Symmetric", 18, 3, 62, 3, -1, 1))
sketch1.addConstraint(Sketcher.Constraint("Symmetric", 22, 3, 66, 3, -1, 1))
sketch1.addConstraint(Sketcher.Constraint("Symmetric", 26, 3, 70, 3, -1, 1))
sketch1.addConstraint(Sketcher.Constraint("Symmetric", 30, 3, 74, 3, -1, 1))
sketch1.addConstraint(Sketcher.Constraint("Symmetric", 32, 3, 76, 3, -1, 1))
sketch1.addConstraint(Sketcher.Constraint("Symmetric", 36, 3, 80, 3, -1, 1))
sketch1.addConstraint(Sketcher.Constraint("Symmetric", 40, 3, 84, 3, -1, 1))
sketch1.addConstraint(Sketcher.Constraint("Symmetric", 30, 3, 36, 3, -2))
sketch1.addConstraint(Sketcher.Constraint("Symmetric", 26, 3, 40, 3, -2))
sketch1.addConstraint(Sketcher.Constraint("Symmetric", 22, 3, 44, 3, -2))
sketch1.addConstraint(Sketcher.Constraint("Symmetric", 18, 3, 48, 3, -2))
sketch1.addConstraint(Sketcher.Constraint("Symmetric", 14, 3, 52, 3, -2))
sketch1.addConstraint(Sketcher.Constraint("Perpendicular", 9, 13))
sketch1.addConstraint(Sketcher.Constraint("Parallel", 13, 31))
sketch1.addConstraint(Sketcher.Constraint("Perpendicular", 31, 35))
sketch1.addConstraint(Sketcher.Constraint("Perpendicular", 53, 57))
sketch1.addConstraint(Sketcher.Constraint("Perpendicular", 75, 79))
sketch1.addConstraint(Sketcher.Constraint("Horizontal", 12, 3, 54, 3))
sketch1.addConstraint(Sketcher.Constraint("Equal", 87, 1))
sketch1.addConstraint(Sketcher.Constraint("Equal", 83, 5))
sketch1.addConstraint(Sketcher.Constraint("Equal", 77, 11))
sketch1.addConstraint(Sketcher.Constraint("Equal", 63, 25))
sketch1.addConstraint(Sketcher.Constraint("Equal", 59, 29))
sketch1.addConstraint(Sketcher.Constraint("Equal", 13, 31))
sketch1.addConstraint(Sketcher.Constraint("Diameter", 88, Q("6.8 mm")))
sketch1.addConstraint(Sketcher.Constraint("Radius", 0, Q("3.17 mm")))
sketch1.addConstraint(Sketcher.Constraint("Radius", 2, Q("1.57 mm")))
sketch1.addConstraint(Sketcher.Constraint("Radius", 8, Q("0.76 mm")))
sketch1.addConstraint(Sketcher.Constraint("DistanceX", 0, 2, -1, 1, Q("20 mm")))
sketch1.addConstraint(Sketcher.Constraint("DistanceX", 3, 1, 3, 2, Q("1.18 mm")))
sketch1.addConstraint(Sketcher.Constraint("Radius", 10, Q("4.8646 mm")))
sketch1.addConstraint(Sketcher.Constraint("DistanceX", 7, 1, 7, 2, Q("0.455 mm")))
sketch1.addConstraint(Sketcher.Constraint("DistanceX", 27, 2, 27, 1, Q("3.025 mm")))
sketch1.addConstraint(Sketcher.Constraint("DistanceX", 23, 1, 23, 2, Q("11.1396 mm")))
sketch1.addConstraint(Sketcher.Constraint("DistanceX", 33, 1, 33, 2, Q("5.2306 mm")))
pad1 = body.newObject("PartDesign::Pad", "Pad")
pad1.Profile = sketch1
pad1.Length = 400
pad1.Reversed = True

doc.recompute()
